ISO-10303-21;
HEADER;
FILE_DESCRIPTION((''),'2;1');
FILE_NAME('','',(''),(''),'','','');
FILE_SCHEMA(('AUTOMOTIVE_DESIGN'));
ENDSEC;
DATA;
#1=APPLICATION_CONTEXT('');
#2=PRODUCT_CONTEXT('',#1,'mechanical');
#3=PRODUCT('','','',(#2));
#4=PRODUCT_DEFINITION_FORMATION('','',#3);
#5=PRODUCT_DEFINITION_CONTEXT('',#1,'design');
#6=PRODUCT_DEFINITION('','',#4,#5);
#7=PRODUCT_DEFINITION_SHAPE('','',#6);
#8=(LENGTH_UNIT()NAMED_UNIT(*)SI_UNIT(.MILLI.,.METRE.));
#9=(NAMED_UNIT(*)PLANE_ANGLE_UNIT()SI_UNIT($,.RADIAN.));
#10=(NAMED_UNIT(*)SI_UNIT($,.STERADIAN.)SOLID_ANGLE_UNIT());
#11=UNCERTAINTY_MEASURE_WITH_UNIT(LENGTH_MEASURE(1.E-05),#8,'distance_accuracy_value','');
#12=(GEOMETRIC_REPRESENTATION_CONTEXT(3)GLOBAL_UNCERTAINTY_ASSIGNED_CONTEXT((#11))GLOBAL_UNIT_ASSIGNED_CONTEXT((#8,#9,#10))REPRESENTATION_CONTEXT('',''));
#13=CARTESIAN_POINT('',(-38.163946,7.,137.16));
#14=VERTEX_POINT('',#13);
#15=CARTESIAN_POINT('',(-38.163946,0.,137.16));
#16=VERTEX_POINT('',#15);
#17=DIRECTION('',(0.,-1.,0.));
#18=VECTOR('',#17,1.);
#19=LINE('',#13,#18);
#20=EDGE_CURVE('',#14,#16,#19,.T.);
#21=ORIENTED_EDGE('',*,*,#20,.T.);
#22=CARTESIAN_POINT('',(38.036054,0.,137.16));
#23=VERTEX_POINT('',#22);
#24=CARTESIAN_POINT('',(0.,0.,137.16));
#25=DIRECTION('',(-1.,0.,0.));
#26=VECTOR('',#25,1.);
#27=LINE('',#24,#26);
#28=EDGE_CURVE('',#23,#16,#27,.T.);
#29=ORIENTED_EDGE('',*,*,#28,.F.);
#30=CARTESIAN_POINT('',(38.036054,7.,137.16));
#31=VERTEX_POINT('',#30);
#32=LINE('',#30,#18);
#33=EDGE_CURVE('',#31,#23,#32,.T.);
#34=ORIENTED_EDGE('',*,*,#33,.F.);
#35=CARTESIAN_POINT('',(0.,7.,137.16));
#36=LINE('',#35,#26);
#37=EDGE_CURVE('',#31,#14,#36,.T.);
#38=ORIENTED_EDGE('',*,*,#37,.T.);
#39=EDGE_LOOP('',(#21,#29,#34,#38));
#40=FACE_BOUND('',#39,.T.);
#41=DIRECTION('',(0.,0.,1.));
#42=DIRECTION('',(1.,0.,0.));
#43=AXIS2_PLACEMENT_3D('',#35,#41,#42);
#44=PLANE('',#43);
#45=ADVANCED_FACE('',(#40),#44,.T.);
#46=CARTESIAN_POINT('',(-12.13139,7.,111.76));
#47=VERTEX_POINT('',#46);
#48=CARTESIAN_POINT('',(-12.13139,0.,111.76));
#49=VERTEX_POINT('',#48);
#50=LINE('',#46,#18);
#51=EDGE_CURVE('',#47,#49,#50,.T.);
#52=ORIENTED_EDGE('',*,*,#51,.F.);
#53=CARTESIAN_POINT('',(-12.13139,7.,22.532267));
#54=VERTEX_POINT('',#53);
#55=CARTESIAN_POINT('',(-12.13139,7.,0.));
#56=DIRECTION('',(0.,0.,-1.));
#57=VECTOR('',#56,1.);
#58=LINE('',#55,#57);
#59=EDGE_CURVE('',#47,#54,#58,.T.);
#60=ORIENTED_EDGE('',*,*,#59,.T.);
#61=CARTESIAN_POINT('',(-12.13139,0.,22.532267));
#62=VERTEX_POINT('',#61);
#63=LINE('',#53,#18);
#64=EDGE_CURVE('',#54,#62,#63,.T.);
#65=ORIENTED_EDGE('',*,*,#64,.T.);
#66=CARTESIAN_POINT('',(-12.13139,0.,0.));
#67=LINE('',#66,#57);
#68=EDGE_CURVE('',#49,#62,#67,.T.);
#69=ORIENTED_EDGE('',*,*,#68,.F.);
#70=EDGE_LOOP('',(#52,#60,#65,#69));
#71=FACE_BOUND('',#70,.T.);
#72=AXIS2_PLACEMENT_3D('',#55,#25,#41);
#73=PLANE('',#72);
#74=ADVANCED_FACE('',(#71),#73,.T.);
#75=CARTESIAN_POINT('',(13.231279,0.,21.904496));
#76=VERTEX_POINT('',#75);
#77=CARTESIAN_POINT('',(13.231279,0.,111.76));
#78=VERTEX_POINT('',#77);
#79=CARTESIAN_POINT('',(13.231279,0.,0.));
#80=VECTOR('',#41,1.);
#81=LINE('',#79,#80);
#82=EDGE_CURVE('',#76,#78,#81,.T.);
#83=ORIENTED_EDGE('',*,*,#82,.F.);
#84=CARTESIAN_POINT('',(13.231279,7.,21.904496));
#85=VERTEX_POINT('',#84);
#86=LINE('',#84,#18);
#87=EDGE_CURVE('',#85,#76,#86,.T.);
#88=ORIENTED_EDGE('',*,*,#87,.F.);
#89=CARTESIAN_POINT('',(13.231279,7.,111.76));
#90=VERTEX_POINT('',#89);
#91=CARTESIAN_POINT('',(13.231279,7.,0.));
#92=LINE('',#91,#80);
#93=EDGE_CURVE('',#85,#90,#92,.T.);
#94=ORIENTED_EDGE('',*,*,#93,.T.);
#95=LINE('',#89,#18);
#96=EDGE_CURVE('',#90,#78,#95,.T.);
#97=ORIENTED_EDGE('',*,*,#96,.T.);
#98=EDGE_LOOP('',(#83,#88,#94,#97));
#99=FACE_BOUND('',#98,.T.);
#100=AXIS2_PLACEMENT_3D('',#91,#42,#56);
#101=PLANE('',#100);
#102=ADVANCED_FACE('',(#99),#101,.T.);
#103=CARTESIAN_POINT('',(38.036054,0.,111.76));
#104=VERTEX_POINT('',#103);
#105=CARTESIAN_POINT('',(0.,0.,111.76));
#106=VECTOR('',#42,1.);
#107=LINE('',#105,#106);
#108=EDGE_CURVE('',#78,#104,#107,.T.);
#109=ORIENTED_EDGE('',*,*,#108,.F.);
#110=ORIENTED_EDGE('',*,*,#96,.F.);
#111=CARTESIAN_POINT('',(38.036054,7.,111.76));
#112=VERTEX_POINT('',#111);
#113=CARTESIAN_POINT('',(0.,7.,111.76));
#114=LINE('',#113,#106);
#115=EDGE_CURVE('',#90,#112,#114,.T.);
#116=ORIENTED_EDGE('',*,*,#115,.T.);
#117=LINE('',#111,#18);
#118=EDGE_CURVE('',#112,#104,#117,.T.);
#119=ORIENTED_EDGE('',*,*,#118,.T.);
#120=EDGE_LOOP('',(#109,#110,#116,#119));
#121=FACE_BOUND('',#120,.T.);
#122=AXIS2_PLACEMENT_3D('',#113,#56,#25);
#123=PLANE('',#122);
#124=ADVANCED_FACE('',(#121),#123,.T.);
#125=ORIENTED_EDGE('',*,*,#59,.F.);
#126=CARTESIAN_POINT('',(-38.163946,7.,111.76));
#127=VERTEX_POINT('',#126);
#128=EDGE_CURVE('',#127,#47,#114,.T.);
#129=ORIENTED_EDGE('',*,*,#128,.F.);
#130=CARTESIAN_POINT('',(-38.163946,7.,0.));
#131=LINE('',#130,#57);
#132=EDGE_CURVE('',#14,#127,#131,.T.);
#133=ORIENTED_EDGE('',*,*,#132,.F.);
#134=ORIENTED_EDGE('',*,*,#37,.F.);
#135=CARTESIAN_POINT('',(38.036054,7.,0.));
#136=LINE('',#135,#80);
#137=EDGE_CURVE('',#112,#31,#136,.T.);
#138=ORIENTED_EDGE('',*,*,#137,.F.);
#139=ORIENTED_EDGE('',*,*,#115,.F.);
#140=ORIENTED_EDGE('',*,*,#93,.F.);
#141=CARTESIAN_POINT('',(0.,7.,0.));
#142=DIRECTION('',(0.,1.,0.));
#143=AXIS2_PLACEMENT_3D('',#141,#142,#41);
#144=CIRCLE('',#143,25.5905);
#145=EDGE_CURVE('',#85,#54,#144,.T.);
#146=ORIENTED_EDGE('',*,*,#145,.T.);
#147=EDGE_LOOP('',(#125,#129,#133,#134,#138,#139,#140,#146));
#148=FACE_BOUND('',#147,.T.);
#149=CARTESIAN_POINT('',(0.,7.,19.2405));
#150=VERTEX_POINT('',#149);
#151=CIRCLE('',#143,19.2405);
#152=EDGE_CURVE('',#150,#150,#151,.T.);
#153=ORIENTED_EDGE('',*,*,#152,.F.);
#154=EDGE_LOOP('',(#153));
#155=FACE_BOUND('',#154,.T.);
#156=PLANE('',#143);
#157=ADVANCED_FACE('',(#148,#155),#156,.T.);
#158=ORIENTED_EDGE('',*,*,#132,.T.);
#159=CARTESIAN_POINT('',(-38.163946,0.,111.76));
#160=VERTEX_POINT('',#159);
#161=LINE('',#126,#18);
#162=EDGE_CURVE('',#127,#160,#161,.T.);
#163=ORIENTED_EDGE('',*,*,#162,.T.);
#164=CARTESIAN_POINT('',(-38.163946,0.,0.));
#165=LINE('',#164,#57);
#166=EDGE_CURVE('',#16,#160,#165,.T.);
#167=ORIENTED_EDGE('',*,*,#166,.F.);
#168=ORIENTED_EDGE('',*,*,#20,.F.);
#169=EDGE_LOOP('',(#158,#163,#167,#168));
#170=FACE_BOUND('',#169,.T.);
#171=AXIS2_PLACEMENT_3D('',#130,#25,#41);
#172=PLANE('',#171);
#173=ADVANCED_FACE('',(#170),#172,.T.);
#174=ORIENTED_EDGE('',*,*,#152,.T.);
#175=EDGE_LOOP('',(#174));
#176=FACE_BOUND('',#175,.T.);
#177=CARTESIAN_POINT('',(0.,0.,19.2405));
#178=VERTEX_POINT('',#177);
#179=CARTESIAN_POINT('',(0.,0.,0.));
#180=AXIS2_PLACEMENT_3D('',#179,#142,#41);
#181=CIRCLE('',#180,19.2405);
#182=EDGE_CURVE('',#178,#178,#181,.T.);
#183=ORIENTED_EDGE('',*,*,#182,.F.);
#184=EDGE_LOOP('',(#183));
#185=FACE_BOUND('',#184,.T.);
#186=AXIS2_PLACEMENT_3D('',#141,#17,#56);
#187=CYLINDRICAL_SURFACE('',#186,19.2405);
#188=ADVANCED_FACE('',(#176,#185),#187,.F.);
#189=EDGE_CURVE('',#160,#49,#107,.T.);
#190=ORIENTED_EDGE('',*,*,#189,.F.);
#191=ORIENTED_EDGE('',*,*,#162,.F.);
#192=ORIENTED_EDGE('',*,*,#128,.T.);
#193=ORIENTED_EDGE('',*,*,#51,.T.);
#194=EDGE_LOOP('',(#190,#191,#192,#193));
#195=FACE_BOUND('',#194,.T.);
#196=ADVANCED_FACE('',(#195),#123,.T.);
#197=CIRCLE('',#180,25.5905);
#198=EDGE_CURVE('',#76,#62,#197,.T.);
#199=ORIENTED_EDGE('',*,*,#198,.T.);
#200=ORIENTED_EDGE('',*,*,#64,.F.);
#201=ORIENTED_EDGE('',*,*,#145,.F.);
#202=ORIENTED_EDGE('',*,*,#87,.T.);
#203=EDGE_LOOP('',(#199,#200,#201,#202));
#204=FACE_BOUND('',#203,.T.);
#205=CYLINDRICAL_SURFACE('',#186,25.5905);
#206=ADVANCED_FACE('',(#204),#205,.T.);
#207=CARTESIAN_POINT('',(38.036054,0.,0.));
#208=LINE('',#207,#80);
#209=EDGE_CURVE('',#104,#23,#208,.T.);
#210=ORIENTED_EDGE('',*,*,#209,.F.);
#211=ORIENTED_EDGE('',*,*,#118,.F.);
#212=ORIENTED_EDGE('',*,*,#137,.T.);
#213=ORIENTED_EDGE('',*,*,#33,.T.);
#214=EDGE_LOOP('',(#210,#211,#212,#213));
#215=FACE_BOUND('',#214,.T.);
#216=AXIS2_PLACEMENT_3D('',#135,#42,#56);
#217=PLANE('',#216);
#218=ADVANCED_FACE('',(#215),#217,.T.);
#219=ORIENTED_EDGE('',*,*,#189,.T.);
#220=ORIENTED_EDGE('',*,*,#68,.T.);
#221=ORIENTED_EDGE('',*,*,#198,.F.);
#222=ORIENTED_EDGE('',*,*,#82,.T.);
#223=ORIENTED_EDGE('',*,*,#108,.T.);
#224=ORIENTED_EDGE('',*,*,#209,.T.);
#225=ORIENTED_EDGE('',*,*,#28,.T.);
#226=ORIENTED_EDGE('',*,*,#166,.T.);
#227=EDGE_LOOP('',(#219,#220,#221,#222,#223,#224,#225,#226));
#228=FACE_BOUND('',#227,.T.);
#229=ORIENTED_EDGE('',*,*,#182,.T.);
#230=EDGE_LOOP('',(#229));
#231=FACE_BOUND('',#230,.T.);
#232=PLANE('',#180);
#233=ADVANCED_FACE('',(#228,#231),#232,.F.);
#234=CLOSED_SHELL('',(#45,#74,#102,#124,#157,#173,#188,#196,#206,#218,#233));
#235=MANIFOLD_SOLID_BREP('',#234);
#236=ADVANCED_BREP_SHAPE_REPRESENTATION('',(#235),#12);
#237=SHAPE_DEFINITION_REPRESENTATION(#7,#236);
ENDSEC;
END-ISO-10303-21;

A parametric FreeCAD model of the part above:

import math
import FreeCAD as App
import Part
import Sketcher

V = App.Vector
Q = App.Units.Quantity

doc = App.newDocument("Part")
body = doc.addObject("PartDesign::Body", "Body")

# Sketch on XZ plane
sketch1 = body.newObject("Sketcher::SketchObject", "Sketch")
sketch1.AttachmentSupport = (doc.getObject("XZ_Plane"), [""])
sketch1.MapMode = "FlatFace"
sketch1.addGeometry(Part.ArcOfCircle(Part.Circle(V(0, 0, 0), V(0, 0, 1), 25.5905), math.radians(118.298057), math.radians(418.866177)), False)
sketch1.addGeometry(Part.LineSegment(V(-12.13139, 22.532267, 0), V(-12.13139, 111.76, 0)), False)
sketch1.addGeometry(Part.LineSegment(V(-12.13139, 111.76, 0), V(-38.163946, 111.76, 0)), False)
sketch1.addGeometry(Part.LineSegment(V(-38.163946, 111.76, 0), V(-38.163946, 137.16, 0)), False)
sketch1.addGeometry(Part.LineSegment(V(-38.163946, 137.16, 0), V(38.036054, 137.16, 0)), False)
sketch1.addGeometry(Part.LineSegment(V(38.036054, 137.16, 0), V(38.036054, 111.76, 0)), False)
sketch1.addGeometry(Part.LineSegment(V(38.036054, 111.76, 0), V(13.231279, 111.76, 0)), False)
sketch1.addGeometry(Part.LineSegment(V(13.231279, 111.76, 0), V(13.231279, 21.904496, 0)), False)
sketch1.addGeometry(Part.Circle(V(0, 0, 0), V(0, 0, 1), 19.2405), False)
sketch1.addConstraint(Sketcher.Constraint("Coincident", 0, 1, 1, 1))
sketch1.addConstraint(Sketcher.Constraint("Coincident", 1, 2, 2, 1))
sketch1.addConstraint(Sketcher.Constraint("Coincident", 2, 2, 3, 1))
sketch1.addConstraint(Sketcher.Constraint("Coincident", 3, 2, 4, 1))
sketch1.addConstraint(Sketcher.Constraint("Coincident", 4, 2, 5, 1))
sketch1.addConstraint(Sketcher.Constraint("Coincident", 5, 2, 6, 1))
sketch1.addConstraint(Sketcher.Constraint("Coincident", 6, 2, 7, 1))
sketch1.addConstraint(Sketcher.Constraint("Coincident", 7, 2, 0, 2))
sketch1.addConstraint(Sketcher.Constraint("Vertical", 1))
sketch1.addConstraint(Sketcher.Constraint("Horizontal", 2))
sketch1.addConstraint(Sketcher.Constraint("Vertical", 3))
sketch1.addConstraint(Sketcher.Constraint("Horizontal", 4))
sketch1.addConstraint(Sketcher.Constraint("Vertical", 5))
sketch1.addConstraint(Sketcher.Constraint("Horizontal", 6))
sketch1.addConstraint(Sketcher.Constraint("Vertical", 7))
sketch1.addConstraint(Sketcher.Constraint("Coincident", 0, 3, -1, 1))
sketch1.addConstraint(Sketcher.Constraint("Coincident", 8, 3, -1, 1))
sketch1.addConstraint(Sketcher.Constraint("Horizontal", 2, 2, 5, 2))
sketch1.addConstraint(Sketcher.Constraint("DistanceX", 4, 1, 4, 2, Q("3 in")))
sketch1.addConstraint(Sketcher.Constraint("DistanceY", 3, 1, 3, 2, Q("1 in")))
sketch1.addConstraint(Sketcher.Constraint("Diameter", 8, Q("1.515 in")))
sketch1.addConstraint(Sketcher.Constraint("DistanceY", -1, 1, 1, 2, Q("4.4 in")))
sketch1.addConstraint(Sketcher.Constraint("Radius", 0, Q("1.0075 in")))
sketch1.addConstraint(Sketcher.Constraint("DistanceX", 2, 2, 2, 1, 26.032556))
sketch1.addConstraint(Sketcher.Constraint("DistanceX", 6, 2, 6, 1, 24.804775))
sketch1.addConstraint(Sketcher.Constraint("DistanceY", 1, 1, 1, 2, 89.227733))
pad1 = body.newObject("PartDesign::Pad", "Pad")
pad1.Profile = sketch1
pad1.Length = 7
pad1.Reversed = True

doc.recompute()
